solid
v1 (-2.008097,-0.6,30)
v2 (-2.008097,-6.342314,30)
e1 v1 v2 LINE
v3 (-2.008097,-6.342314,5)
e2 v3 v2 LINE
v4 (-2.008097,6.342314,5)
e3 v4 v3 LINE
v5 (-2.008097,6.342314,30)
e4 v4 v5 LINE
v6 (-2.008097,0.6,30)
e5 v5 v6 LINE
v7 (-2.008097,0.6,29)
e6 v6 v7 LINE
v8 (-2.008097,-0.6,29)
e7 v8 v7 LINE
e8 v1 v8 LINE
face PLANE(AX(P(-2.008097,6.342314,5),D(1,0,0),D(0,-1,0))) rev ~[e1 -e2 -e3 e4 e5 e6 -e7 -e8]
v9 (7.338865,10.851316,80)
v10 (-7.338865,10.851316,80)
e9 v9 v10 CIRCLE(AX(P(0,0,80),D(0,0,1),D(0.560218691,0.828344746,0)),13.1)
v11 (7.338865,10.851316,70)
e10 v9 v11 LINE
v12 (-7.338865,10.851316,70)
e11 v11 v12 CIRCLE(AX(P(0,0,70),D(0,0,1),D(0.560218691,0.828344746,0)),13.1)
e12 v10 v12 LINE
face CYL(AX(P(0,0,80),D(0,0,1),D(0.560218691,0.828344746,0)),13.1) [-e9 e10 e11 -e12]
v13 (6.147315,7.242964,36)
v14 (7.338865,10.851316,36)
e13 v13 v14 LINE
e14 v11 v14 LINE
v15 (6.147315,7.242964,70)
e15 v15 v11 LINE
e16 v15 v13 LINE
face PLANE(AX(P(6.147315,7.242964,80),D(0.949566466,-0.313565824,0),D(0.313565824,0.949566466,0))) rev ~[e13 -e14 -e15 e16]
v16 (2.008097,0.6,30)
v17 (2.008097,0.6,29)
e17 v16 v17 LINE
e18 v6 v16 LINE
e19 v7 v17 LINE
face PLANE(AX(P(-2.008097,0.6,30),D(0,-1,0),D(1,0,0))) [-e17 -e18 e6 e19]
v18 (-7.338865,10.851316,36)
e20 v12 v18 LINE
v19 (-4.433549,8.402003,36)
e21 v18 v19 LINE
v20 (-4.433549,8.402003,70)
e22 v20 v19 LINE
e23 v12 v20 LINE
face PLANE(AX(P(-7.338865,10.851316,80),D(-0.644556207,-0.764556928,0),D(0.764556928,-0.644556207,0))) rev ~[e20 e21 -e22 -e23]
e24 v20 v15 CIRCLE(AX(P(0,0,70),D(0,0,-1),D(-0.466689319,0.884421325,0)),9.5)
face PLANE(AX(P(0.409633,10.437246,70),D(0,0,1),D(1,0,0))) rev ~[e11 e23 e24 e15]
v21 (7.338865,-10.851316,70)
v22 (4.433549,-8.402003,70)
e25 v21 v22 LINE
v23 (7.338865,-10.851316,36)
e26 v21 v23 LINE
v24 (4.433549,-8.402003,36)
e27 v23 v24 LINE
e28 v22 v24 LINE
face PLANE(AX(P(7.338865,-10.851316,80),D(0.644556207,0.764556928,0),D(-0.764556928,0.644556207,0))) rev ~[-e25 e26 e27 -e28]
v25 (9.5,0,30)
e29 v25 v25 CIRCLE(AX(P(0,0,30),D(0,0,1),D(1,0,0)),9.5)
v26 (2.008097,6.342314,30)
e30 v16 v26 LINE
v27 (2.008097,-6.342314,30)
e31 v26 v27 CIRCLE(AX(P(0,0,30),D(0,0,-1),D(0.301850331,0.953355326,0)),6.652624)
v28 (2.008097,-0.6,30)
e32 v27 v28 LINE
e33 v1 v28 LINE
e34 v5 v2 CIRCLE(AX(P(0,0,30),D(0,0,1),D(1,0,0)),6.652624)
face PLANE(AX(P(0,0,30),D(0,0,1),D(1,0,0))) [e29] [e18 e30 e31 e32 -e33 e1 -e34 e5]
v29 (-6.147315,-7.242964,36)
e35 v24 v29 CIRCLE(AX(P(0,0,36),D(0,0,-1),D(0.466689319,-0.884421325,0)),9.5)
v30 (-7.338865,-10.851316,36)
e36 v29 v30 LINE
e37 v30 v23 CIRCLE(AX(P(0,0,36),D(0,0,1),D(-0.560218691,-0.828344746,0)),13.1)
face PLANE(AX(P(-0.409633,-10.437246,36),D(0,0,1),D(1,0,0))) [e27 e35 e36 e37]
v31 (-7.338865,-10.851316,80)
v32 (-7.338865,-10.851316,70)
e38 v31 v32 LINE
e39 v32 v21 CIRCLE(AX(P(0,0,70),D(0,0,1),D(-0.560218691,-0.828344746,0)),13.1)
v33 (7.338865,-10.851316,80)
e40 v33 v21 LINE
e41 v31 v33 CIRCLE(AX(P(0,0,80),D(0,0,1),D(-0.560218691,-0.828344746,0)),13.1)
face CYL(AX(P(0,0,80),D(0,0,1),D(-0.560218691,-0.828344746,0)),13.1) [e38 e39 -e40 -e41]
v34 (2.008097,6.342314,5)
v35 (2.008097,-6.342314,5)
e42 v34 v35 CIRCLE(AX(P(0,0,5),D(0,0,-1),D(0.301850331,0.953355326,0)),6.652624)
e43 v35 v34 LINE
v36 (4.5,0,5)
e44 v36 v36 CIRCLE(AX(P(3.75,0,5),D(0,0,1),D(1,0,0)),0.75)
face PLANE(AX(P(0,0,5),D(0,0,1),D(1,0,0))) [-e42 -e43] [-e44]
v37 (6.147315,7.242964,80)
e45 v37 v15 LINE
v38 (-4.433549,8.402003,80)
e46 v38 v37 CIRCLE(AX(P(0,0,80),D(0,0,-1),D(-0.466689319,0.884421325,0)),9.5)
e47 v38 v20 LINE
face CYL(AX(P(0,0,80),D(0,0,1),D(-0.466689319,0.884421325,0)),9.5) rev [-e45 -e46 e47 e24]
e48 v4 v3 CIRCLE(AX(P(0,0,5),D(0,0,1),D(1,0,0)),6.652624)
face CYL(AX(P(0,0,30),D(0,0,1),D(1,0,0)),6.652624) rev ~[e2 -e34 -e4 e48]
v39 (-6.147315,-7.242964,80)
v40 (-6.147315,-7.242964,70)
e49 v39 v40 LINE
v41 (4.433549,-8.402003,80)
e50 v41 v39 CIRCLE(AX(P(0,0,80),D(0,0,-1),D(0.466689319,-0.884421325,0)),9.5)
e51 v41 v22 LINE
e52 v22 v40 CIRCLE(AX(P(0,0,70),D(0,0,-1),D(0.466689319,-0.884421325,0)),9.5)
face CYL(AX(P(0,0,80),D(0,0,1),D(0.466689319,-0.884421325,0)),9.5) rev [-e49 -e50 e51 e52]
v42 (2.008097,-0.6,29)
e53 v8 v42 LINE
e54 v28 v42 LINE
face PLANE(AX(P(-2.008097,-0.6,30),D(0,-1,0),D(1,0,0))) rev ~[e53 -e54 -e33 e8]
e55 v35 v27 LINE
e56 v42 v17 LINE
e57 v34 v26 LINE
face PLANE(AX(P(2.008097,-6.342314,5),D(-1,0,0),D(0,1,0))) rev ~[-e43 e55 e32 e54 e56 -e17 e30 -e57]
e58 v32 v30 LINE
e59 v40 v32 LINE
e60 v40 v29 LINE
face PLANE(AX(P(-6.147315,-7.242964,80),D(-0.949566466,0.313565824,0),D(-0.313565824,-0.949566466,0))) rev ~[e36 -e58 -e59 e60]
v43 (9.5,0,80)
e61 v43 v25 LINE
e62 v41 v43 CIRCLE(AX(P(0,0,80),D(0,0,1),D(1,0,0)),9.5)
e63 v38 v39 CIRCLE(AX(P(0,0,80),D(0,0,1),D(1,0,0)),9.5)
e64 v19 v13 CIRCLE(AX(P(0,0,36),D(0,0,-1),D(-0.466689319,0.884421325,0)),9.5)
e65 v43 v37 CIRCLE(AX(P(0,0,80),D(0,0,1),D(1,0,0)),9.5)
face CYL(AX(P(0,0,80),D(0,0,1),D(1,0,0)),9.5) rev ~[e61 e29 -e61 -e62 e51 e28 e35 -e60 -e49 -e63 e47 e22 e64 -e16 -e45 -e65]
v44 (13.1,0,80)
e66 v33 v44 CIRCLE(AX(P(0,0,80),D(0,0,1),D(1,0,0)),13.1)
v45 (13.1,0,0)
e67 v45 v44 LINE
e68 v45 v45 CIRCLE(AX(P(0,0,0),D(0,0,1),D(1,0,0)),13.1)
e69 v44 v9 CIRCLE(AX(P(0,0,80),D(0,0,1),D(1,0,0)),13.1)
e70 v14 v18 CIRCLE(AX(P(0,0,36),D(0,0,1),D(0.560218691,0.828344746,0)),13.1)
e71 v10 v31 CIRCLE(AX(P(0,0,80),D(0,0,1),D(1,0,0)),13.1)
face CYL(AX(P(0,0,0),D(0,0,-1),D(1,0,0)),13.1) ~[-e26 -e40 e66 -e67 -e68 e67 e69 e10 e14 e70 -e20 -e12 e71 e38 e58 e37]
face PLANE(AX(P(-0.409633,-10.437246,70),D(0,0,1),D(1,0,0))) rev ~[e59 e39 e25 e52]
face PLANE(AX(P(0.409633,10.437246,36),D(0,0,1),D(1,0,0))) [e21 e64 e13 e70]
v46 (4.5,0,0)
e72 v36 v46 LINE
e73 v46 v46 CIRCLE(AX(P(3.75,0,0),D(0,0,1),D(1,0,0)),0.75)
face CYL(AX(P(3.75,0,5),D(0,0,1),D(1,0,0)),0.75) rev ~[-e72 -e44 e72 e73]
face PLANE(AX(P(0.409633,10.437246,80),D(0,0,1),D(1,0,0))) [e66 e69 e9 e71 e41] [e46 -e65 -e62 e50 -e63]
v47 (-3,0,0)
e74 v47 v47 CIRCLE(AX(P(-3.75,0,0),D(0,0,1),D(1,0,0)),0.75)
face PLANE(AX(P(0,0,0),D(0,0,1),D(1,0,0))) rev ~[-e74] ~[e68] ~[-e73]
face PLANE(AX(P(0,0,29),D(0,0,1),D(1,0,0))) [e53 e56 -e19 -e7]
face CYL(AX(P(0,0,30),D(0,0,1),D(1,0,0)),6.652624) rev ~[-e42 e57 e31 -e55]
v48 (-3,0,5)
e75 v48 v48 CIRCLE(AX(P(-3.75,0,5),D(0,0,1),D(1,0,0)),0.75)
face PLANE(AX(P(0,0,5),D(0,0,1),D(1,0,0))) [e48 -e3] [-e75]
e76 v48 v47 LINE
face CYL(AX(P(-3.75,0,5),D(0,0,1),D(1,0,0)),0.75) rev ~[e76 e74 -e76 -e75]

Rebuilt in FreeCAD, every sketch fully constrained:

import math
import FreeCAD as App
import Part
import Sketcher


def add_polygon(sketch, points):
    """Adds a closed chain of lines whose ends are joined by coincident constraints."""
    first, n = sketch.GeometryCount, len(points)
    for a, b in zip(points, points[1:] + points[:1]):
        sketch.addGeometry(Part.LineSegment(App.Vector(*a, 0), App.Vector(*b, 0)), False)
    for i in range(n):
        sketch.addConstraint(Sketcher.Constraint("Coincident", first + i, 2, first + (i + 1) % n, 1))

doc = App.newDocument("Part")
body = doc.addObject("PartDesign::Body", "Body")

# Sketch on XY plane
sketch1 = body.newObject("Sketcher::SketchObject", "Sketch")
sketch1.AttachmentSupport = (doc.getObject("XY_Plane"), [""])
sketch1.MapMode = "FlatFace"
sketch1.addGeometry(Part.Circle(App.Vector(0, 0, 0), App.Vector(0, 0, 1), 13), False)
sketch1.addConstraint(Sketcher.Constraint("Coincident", 0, 3, -1, 1))
sketch1.addConstraint(Sketcher.Constraint("Diameter", 0, 26.2))
pad1 = body.newObject("PartDesign::Pad", "Pad")
pad1.Profile = sketch1
pad1.Length = 80

# Sketch on XY plane
sketch2 = body.newObject("Sketcher::SketchObject", "Sketch001")
sketch2.AttachmentSupport = (doc.getObject("XY_Plane"), [""])
sketch2.MapMode = "FlatFace"
sketch2.AttachmentOffset = App.Placement(App.Vector(0, 0, 80), App.Rotation())
sketch2.addGeometry(Part.Circle(App.Vector(0, 0, 0), App.Vector(0, 0, 1), 10), False)
sketch2.addConstraint(Sketcher.Constraint("Coincident", 0, 3, -1, 1))
sketch2.addConstraint(Sketcher.Constraint("Diameter", 0, 19.0))
pocket1 = body.newObject("PartDesign::Pocket", "Pocket")
pocket1.Profile = sketch2
pocket1.Length = 50

# Sketch on XY plane
sketch3 = body.newObject("Sketcher::SketchObject", "Sketch002")
sketch3.AttachmentSupport = (doc.getObject("XY_Plane"), [""])
sketch3.MapMode = "FlatFace"
sketch3.AttachmentOffset = App.Placement(App.Vector(0, 0, 30), App.Rotation())
sketch3.addGeometry(Part.Circle(App.Vector(0, 0, 0), App.Vector(0, 0, 1), 7), False)
sketch3.addConstraint(Sketcher.Constraint("Coincident", 0, 3, -1, 1))
sketch3.addConstraint(Sketcher.Constraint("Diameter", 0, 13.305247))
pocket2 = body.newObject("PartDesign::Pocket", "Pocket001")
pocket2.Profile = sketch3
pocket2.Length = 25

# Sketch on XY plane
sketch4 = body.newObject("Sketcher::SketchObject", "Sketch003")
sketch4.AttachmentSupport = (doc.getObject("XY_Plane"), [""])
sketch4.MapMode = "FlatFace"
sketch4.AttachmentOffset = App.Placement(App.Vector(0, 0, 5), App.Rotation())
sketch4.addGeometry(Part.ArcOfCircle(Part.Circle(App.Vector(0, 0, 0), App.Vector(0, 0, 1), 6.7), math.radians(72), math.radians(108)), False)
sketch4.addGeometry(Part.LineSegment(App.Vector(-2, 6.3, 0), App.Vector(-2, -6.3, 0)), False)
sketch4.addGeometry(Part.ArcOfCircle(Part.Circle(App.Vector(0, 0, 0), App.Vector(0, 0, 1), 6.7), math.radians(-108), math.radians(-72)), False)
sketch4.addGeometry(Part.LineSegment(App.Vector(2, -6.3, 0), App.Vector(2, 6.3, 0)), False)
sketch4.addConstraint(Sketcher.Constraint("Coincident", 0, 2, 1, 1))
sketch4.addConstraint(Sketcher.Constraint("Coincident", 1, 2, 2, 1))
sketch4.addConstraint(Sketcher.Constraint("Coincident", 2, 2, 3, 1))
sketch4.addConstraint(Sketcher.Constraint("Coincident", 3, 2, 0, 1))
sketch4.addConstraint(Sketcher.Constraint("Vertical", 1))
sketch4.addConstraint(Sketcher.Constraint("Vertical", 3))
sketch4.addConstraint(Sketcher.Constraint("Coincident", 0, 3, -1, 1))
sketch4.addConstraint(Sketcher.Constraint("Coincident", 2, 3, -1, 1))
sketch4.addConstraint(Sketcher.Constraint("Equal", 0, 2))
sketch4.addConstraint(Sketcher.Constraint("Horizontal", 1, 2, 2, 2))
sketch4.addConstraint(Sketcher.Constraint("Radius", 0, 6.652624))
sketch4.addConstraint(Sketcher.Constraint("DistanceY", 1, 2, 1, 1, 12.684628))
pad2 = body.newObject("PartDesign::Pad", "Pad001")
pad2.Profile = sketch4
pad2.Length = 25

# Sketch on XY plane
sketch5 = body.newObject("Sketcher::SketchObject", "Sketch004")
sketch5.AttachmentSupport = (doc.getObject("XY_Plane"), [""])
sketch5.MapMode = "FlatFace"
sketch5.AttachmentOffset = App.Placement(App.Vector(0, 0, 5), App.Rotation())
sketch5.addGeometry(Part.Circle(App.Vector(-3.8, 0, 0), App.Vector(0, 0, 1), 0.8), False)
sketch5.addGeometry(Part.Circle(App.Vector(3.8, 0, 0), App.Vector(0, 0, 1), 0.8), False)
sketch5.addConstraint(Sketcher.Constraint("Equal", 0, 1))
sketch5.addConstraint(Sketcher.Constraint("Symmetric", 0, 3, 1, 3, -1, 1))
sketch5.addConstraint(Sketcher.Constraint("PointOnObject", 0, 3, -1))
sketch5.addConstraint(Sketcher.Constraint("Diameter", 0, 1.5))
sketch5.addConstraint(Sketcher.Constraint("DistanceX", 0, 3, 1, 3, 7.5))
pocket3 = body.newObject("PartDesign::Pocket", "Pocket002")
pocket3.Profile = sketch5
pocket3.Length = 5

# Sketch on XY plane
sketch6 = body.newObject("Sketcher::SketchObject", "Sketch005")
sketch6.AttachmentSupport = (doc.getObject("XY_Plane"), [""])
sketch6.MapMode = "FlatFace"
sketch6.AttachmentOffset = App.Placement(App.Vector(0, 0, 30), App.Rotation())
add_polygon(sketch6, [(-2, 0.6), (-2, -0.6), (2, -0.6), (2, 0.6)])  # lines 0-3
sketch6.addConstraint(Sketcher.Constraint("Vertical", 0))
sketch6.addConstraint(Sketcher.Constraint("Horizontal", 1))
sketch6.addConstraint(Sketcher.Constraint("Vertical", 2))
sketch6.addConstraint(Sketcher.Constraint("Horizontal", 3))
sketch6.addConstraint(Sketcher.Constraint("Symmetric", 0, 2, 2, 2, -1, 1))
sketch6.addConstraint(Sketcher.Constraint("DistanceY", 0, 2, 0, 1, 1.2))
sketch6.addConstraint(Sketcher.Constraint("DistanceX", 1, 1, 1, 2, 4.016193))
pocket4 = body.newObject("PartDesign::Pocket", "Pocket003")
pocket4.Profile = sketch6
pocket4.Length = 1

# Sketch on XY plane
sketch7 = body.newObject("Sketcher::SketchObject", "Sketch006")
sketch7.AttachmentSupport = (doc.getObject("XY_Plane"), [""])
sketch7.MapMode = "FlatFace"
sketch7.AttachmentOffset = App.Placement(App.Vector(0, 0, 80), App.Rotation())
sketch7.addGeometry(Part.LineSegment(App.Vector(-7.3, 10.9, 0), App.Vector(-4.4, 8.4, 0)), False)
sketch7.addGeometry(Part.ArcOfCircle(Part.Circle(App.Vector(0, 0, 0), App.Vector(0, 0, 1), 9.5), math.radians(50), math.radians(118)), False)
sketch7.addGeometry(Part.LineSegment(App.Vector(6.1, 7.2, 0), App.Vector(7.3, 10.9, 0)), False)
sketch7.addGeometry(Part.ArcOfCircle(Part.Circle(App.Vector(0, 0, 0), App.Vector(0, 0, 1), 13.1), math.radians(56), math.radians(124)), False)
sketch7.addConstraint(Sketcher.Constraint("Coincident", 0, 2, 1, 2))
sketch7.addConstraint(Sketcher.Constraint("Coincident", 1, 1, 2, 1))
sketch7.addConstraint(Sketcher.Constraint("Coincident", 2, 2, 3, 1))
sketch7.addConstraint(Sketcher.Constraint("Coincident", 3, 2, 0, 1))
sketch7.addConstraint(Sketcher.Constraint("Coincident", 1, 3, -1, 1))
sketch7.addConstraint(Sketcher.Constraint("Coincident", 3, 3, -1, 1))
sketch7.addConstraint(Sketcher.Constraint("Horizontal", 2, 2, 3, 2))
sketch7.addConstraint(Sketcher.Constraint("Equal", 0, 2))
sketch7.addConstraint(Sketcher.Constraint("Radius", 1, 9.5))
sketch7.addConstraint(Sketcher.Constraint("Radius", 3, 13.1))
sketch7.addConstraint(Sketcher.Constraint("Distance", 0, 3.8))
sketch7.addConstraint(Sketcher.Constraint("DistanceX", 0, 2, -1, 1, 4.433549))
pocket5 = body.newObject("PartDesign::Pocket", "Pocket004")
pocket5.Profile = sketch7
pocket5.Length = 44

# Sketch on XY plane
sketch8 = body.newObject("Sketcher::SketchObject", "Sketch007")
sketch8.AttachmentSupport = (doc.getObject("XY_Plane"), [""])
sketch8.MapMode = "FlatFace"
sketch8.AttachmentOffset = App.Placement(App.Vector(0, 0, 80), App.Rotation())
sketch8.addGeometry(Part.ArcOfCircle(Part.Circle(App.Vector(0, 0, 0), App.Vector(0, 0, 1), 9.5), math.radians(-130), math.radians(-62)), False)
sketch8.addGeometry(Part.LineSegment(App.Vector(-6.1, -7.2, 0), App.Vector(-7.3, -10.9, 0)), False)
sketch8.addGeometry(Part.ArcOfCircle(Part.Circle(App.Vector(0, 0, 0), App.Vector(0, 0, 1), 13.1), math.radians(-124), math.radians(-56)), False)
sketch8.addGeometry(Part.LineSegment(App.Vector(7.3, -10.9, 0), App.Vector(4.4, -8.4, 0)), False)
sketch8.addConstraint(Sketcher.Constraint("Coincident", 0, 1, 1, 1))
sketch8.addConstraint(Sketcher.Constraint("Coincident", 1, 2, 2, 1))
sketch8.addConstraint(Sketcher.Constraint("Coincident", 2, 2, 3, 1))
sketch8.addConstraint(Sketcher.Constraint("Coincident", 3, 2, 0, 2))
sketch8.addConstraint(Sketcher.Constraint("Coincident", 0, 3, -1, 1))
sketch8.addConstraint(Sketcher.Constraint("Coincident", 2, 3, -1, 1))
sketch8.addConstraint(Sketcher.Constraint("Horizontal", 1, 2, 2, 2))
sketch8.addConstraint(Sketcher.Constraint("Equal", 1, 3))
sketch8.addConstraint(Sketcher.Constraint("Radius", 0, 9.5))
sketch8.addConstraint(Sketcher.Constraint("Radius", 2, 13.1))
sketch8.addConstraint(Sketcher.Constraint("Distance", 1, 3.8))
sketch8.addConstraint(Sketcher.Constraint("DistanceX", -1, 1, 3, 2, 4.433549))
pocket6 = body.newObject("PartDesign::Pocket", "Pocket005")
pocket6.Profile = sketch8
pocket6.Length = 44

# Sketch on XY plane
sketch9 = body.newObject("Sketcher::SketchObject", "Sketch008")
sketch9.AttachmentSupport = (doc.getObject("XY_Plane"), [""])
sketch9.MapMode = "FlatFace"
sketch9.AttachmentOffset = App.Placement(App.Vector(0, 0, 80), App.Rotation())
sketch9.addGeometry(Part.ArcOfCircle(Part.Circle(App.Vector(0, 0, 0), App.Vector(0, 0, 1), 9.5), math.radians(-130), math.radians(-62)), False)
sketch9.addGeometry(Part.LineSegment(App.Vector(-6.1, -7.2, 0), App.Vector(-7.3, -10.9, 0)), False)
sketch9.addGeometry(Part.ArcOfCircle(Part.Circle(App.Vector(0, 0, 0), App.Vector(0, 0, 1), 13.1), math.radians(-124), math.radians(-56)), False)
sketch9.addGeometry(Part.LineSegment(App.Vector(7.3, -10.9, 0), App.Vector(4.4, -8.4, 0)), False)
sketch9.addConstraint(Sketcher.Constraint("Coincident", 0, 1, 1, 1))
sketch9.addConstraint(Sketcher.Constraint("Coincident", 1, 2, 2, 1))
sketch9.addConstraint(Sketcher.Constraint("Coincident", 2, 2, 3, 1))
sketch9.addConstraint(Sketcher.Constraint("Coincident", 3, 2, 0, 2))
sketch9.addConstraint(Sketcher.Constraint("Coincident", 0, 3, -1, 1))
sketch9.addConstraint(Sketcher.Constraint("Coincident", 2, 3, -1, 1))
sketch9.addConstraint(Sketcher.Constraint("Horizontal", 1, 2, 2, 2))
sketch9.addConstraint(Sketcher.Constraint("Equal", 1, 3))
sketch9.addConstraint(Sketcher.Constraint("Radius", 0, 9.5))
sketch9.addConstraint(Sketcher.Constraint("Radius", 2, 13.1))
sketch9.addConstraint(Sketcher.Constraint("Distance", 1, 3.8))
sketch9.addConstraint(Sketcher.Constraint("DistanceX", -1, 1, 3, 2, 4.433549))
pad3 = body.newObject("PartDesign::Pad", "Pad002")
pad3.Profile = sketch9
pad3.Length = 10
pad3.Reversed = True

# Sketch on XY plane
sketch10 = body.newObject("Sketcher::SketchObject", "Sketch009")
sketch10.AttachmentSupport = (doc.getObject("XY_Plane"), [""])
sketch10.MapMode = "FlatFace"
sketch10.AttachmentOffset = App.Placement(App.Vector(0, 0, 80), App.Rotation())
sketch10.addGeometry(Part.LineSegment(App.Vector(-7.3, 10.9, 0), App.Vector(-4.4, 8.4, 0)), False)
sketch10.addGeometry(Part.ArcOfCircle(Part.Circle(App.Vector(0, 0, 0), App.Vector(0, 0, 1), 9.5), math.radians(50), math.radians(118)), False)
sketch10.addGeometry(Part.LineSegment(App.Vector(6.1, 7.2, 0), App.Vector(7.3, 10.9, 0)), False)
sketch10.addGeometry(Part.ArcOfCircle(Part.Circle(App.Vector(0, 0, 0), App.Vector(0, 0, 1), 13.1), math.radians(56), math.radians(124)), False)
sketch10.addConstraint(Sketcher.Constraint("Coincident", 0, 2, 1, 2))
sketch10.addConstraint(Sketcher.Constraint("Coincident", 1, 1, 2, 1))
sketch10.addConstraint(Sketcher.Constraint("Coincident", 2, 2, 3, 1))
sketch10.addConstraint(Sketcher.Constraint("Coincident", 3, 2, 0, 1))
sketch10.addConstraint(Sketcher.Constraint("Coincident", 1, 3, -1, 1))
sketch10.addConstraint(Sketcher.Constraint("Coincident", 3, 3, -1, 1))
sketch10.addConstraint(Sketcher.Constraint("Horizontal", 2, 2, 3, 2))
sketch10.addConstraint(Sketcher.Constraint("Equal", 0, 2))
sketch10.addConstraint(Sketcher.Constraint("Radius", 1, 9.5))
sketch10.addConstraint(Sketcher.Constraint("Radius", 3, 13.1))
sketch10.addConstraint(Sketcher.Constraint("Distance", 0, 3.8))
sketch10.addConstraint(Sketcher.Constraint("DistanceX", 0, 2, -1, 1, 4.433549))
pad4 = body.newObject("PartDesign::Pad", "Pad003")
pad4.Profile = sketch10
pad4.Length = 10
pad4.Reversed = True

doc.recompute()
